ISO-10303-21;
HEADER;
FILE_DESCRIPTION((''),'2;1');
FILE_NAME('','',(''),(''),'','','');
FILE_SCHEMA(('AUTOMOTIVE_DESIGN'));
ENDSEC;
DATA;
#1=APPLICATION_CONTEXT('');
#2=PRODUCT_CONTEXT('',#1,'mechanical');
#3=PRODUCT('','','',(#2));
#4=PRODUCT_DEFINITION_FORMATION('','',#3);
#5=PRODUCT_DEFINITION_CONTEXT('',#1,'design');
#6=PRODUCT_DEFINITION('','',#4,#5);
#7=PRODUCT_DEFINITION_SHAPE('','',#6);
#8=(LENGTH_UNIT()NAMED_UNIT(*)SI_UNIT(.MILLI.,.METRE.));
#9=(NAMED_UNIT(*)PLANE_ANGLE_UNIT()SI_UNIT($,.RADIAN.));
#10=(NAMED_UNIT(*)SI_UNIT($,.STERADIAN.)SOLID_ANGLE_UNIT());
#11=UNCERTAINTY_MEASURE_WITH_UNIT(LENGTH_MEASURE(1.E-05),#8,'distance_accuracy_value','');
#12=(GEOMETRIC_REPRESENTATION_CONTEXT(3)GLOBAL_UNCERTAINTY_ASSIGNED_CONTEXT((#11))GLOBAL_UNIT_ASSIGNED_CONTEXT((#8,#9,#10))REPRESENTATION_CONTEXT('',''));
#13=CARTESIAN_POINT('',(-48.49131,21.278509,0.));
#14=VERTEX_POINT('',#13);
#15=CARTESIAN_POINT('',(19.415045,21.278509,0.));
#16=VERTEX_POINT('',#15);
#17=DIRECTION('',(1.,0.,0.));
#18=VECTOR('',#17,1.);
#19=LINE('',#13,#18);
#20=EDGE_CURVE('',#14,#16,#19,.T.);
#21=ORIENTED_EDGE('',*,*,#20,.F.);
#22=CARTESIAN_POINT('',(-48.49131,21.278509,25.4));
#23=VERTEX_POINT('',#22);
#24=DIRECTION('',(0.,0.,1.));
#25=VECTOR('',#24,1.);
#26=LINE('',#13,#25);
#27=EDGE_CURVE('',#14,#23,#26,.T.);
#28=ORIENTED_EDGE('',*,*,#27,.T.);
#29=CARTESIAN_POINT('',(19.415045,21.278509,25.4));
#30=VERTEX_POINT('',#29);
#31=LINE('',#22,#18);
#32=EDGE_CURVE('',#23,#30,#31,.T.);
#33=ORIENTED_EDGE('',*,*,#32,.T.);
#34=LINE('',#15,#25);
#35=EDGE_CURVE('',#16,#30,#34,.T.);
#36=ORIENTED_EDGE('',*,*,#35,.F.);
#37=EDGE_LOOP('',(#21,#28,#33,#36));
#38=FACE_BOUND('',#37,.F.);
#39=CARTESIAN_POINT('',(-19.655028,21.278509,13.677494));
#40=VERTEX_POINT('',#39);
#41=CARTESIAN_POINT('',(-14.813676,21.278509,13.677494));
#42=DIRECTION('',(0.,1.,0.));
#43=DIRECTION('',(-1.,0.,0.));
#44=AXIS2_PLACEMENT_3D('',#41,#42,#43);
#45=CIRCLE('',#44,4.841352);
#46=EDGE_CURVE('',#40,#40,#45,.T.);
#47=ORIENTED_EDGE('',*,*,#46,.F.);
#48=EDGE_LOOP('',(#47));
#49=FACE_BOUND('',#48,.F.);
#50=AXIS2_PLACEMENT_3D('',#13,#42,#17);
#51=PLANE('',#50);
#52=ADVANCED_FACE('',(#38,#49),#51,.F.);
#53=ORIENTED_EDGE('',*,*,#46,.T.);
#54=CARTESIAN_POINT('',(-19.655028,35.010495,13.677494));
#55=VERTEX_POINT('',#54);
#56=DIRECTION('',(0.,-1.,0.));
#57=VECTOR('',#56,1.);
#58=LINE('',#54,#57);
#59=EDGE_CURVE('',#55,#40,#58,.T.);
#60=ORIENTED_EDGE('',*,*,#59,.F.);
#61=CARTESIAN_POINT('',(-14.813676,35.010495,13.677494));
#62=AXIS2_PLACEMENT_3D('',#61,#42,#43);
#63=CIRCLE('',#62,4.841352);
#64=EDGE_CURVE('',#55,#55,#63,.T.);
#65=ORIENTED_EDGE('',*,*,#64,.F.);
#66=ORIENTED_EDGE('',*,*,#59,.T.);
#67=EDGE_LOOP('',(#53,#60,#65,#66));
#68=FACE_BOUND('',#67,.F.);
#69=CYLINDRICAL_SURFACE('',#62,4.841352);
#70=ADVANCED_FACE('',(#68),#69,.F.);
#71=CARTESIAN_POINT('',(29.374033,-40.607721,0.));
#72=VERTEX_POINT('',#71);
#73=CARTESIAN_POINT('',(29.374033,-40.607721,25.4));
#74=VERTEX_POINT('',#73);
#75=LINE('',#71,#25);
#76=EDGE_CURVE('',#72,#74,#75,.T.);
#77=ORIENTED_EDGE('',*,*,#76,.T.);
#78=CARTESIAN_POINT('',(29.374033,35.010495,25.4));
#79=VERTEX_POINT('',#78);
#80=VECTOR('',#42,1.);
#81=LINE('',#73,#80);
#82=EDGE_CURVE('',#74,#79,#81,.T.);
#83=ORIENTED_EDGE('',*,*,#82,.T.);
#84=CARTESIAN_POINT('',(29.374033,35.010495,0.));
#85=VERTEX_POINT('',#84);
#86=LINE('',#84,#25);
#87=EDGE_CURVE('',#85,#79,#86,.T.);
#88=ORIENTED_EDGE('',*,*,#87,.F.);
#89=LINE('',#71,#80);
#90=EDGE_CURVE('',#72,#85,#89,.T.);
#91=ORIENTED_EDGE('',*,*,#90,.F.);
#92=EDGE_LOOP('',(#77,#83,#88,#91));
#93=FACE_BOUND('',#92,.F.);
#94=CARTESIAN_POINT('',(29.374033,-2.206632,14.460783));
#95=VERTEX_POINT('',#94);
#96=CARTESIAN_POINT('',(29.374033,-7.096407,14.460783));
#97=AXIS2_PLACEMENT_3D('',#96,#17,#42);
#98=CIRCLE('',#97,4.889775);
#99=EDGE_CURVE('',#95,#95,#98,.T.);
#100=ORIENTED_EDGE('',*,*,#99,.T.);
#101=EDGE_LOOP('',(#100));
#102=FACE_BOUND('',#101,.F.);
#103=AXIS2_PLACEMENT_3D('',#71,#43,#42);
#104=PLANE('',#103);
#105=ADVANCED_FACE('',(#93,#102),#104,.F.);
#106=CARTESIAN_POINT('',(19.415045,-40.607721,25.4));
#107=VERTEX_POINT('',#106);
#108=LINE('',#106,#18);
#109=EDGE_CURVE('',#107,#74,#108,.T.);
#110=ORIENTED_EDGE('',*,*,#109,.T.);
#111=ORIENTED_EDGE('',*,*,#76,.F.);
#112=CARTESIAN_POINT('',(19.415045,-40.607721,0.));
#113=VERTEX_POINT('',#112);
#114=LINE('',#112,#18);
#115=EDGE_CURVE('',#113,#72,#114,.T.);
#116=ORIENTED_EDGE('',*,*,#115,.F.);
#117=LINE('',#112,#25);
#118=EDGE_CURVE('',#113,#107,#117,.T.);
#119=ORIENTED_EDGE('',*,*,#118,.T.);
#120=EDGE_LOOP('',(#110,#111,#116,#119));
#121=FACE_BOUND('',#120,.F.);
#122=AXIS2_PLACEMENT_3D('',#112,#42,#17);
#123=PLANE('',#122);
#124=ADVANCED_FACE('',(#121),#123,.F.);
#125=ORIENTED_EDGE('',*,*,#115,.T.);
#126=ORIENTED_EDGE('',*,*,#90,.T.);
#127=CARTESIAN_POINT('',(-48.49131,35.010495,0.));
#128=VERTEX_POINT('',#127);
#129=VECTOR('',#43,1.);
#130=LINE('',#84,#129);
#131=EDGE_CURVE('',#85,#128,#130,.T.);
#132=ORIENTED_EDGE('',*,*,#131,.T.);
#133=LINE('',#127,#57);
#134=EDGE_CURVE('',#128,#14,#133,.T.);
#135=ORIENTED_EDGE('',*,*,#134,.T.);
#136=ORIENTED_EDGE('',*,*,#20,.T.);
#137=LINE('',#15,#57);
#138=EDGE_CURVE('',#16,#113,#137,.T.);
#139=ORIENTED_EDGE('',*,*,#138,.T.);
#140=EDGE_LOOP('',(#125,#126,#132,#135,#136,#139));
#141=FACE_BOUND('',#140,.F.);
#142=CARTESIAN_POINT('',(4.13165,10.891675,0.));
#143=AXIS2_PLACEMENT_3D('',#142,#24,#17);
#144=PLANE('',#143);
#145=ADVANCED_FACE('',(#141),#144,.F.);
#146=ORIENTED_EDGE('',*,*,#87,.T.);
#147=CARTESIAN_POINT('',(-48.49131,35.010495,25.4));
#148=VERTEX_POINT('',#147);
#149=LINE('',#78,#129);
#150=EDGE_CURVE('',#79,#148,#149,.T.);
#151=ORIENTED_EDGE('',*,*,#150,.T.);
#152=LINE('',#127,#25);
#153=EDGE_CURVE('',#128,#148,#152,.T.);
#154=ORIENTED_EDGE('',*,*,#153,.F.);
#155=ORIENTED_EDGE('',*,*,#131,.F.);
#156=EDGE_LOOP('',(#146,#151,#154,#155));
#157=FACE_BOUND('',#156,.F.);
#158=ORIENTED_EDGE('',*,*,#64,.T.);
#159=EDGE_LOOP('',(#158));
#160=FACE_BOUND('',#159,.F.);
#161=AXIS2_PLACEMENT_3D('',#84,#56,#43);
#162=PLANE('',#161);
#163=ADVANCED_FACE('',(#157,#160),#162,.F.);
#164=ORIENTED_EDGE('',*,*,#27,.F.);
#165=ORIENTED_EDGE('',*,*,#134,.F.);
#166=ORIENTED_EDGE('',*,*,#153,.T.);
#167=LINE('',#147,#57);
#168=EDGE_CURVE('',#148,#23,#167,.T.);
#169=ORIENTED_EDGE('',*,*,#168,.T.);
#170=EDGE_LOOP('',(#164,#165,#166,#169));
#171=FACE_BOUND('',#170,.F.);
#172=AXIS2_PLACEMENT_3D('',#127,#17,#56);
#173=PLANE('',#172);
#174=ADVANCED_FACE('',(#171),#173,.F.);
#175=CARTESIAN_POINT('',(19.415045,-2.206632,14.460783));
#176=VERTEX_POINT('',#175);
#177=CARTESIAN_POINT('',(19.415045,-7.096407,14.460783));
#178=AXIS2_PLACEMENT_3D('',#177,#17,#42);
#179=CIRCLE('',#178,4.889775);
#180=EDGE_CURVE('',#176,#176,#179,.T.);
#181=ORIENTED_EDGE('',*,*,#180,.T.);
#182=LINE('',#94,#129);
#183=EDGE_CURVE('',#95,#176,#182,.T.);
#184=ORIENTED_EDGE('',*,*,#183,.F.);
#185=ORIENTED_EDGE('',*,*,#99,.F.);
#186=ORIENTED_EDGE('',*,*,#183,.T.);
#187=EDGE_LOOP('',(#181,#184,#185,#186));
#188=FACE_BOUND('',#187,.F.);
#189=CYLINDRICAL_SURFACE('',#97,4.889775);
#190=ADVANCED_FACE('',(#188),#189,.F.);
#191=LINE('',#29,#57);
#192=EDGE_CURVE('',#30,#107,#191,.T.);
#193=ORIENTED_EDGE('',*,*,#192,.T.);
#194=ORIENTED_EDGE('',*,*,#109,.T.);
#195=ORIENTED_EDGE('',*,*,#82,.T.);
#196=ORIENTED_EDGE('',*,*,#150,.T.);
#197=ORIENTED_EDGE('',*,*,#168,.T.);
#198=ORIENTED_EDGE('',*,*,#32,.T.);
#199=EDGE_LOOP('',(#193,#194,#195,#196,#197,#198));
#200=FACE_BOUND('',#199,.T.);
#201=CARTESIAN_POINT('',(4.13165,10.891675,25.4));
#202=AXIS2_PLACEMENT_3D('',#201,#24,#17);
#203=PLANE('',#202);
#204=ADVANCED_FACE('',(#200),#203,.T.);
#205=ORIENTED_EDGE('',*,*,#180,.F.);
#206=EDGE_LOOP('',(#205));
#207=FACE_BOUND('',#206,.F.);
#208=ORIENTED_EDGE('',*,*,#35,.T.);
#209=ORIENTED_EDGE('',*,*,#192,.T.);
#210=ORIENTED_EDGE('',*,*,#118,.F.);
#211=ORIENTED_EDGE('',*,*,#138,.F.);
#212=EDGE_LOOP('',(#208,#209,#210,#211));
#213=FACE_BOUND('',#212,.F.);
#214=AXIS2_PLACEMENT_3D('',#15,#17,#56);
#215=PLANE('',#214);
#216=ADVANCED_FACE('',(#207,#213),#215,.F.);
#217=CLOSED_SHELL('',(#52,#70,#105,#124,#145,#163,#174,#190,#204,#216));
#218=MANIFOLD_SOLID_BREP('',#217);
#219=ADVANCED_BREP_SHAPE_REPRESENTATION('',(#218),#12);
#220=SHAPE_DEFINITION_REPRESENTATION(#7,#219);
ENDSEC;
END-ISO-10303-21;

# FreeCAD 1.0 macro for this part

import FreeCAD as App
import Part
import Sketcher
from FreeCAD import Vector
Q = App.Units.Quantity


def add_polygon(sketch, points):
    """Adds a closed chain of lines whose ends are joined by coincident constraints."""
    first, n = sketch.GeometryCount, len(points)
    for a, b in zip(points, points[1:] + points[:1]):
        sketch.addGeometry(Part.LineSegment(App.Vector(*a, 0), App.Vector(*b, 0)), False)
    for i in range(n):
        sketch.addConstraint(Sketcher.Constraint("Coincident", first + i, 2, first + (i + 1) % n, 1))

doc = App.newDocument("Part")
body = doc.addObject("PartDesign::Body", "Body")

sketch1 = doc.addObject("Sketcher::SketchObject", "Sketch")
body.addObject(sketch1)
sketch1.AttachmentSupport = (doc.XY_Plane, [""])
sketch1.MapMode = "FlatFace"
add_polygon(sketch1, [(29, 35), (-48, 35), (-48, 21), (19, 21), (19, -41), (29, -41)])
sketch1.addConstraint(Sketcher.Constraint("Horizontal", 0))
sketch1.addConstraint(Sketcher.Constraint("Vertical", 1))
sketch1.addConstraint(Sketcher.Constraint("Horizontal", 2))
sketch1.addConstraint(Sketcher.Constraint("Vertical", 3))
sketch1.addConstraint(Sketcher.Constraint("Horizontal", 4))
sketch1.addConstraint(Sketcher.Constraint("Vertical", 5))
sketch1.addConstraint(Sketcher.Constraint("DistanceX", 4, 1, 4, 2, Q("9.958988 mm")))
sketch1.addConstraint(Sketcher.Constraint("DistanceY", 3, 2, 3, 1, Q("61.88623 mm")))
sketch1.addConstraint(Sketcher.Constraint("DistanceX", 0, 2, 0, 1, Q("77.865343 mm")))
sketch1.addConstraint(Sketcher.Constraint("DistanceY", 1, 2, 1, 1, Q("13.731986 mm")))
sketch1.addConstraint(Sketcher.Constraint("DistanceX", 0, 2, -1, 1, Q("48.49131 mm")))
sketch1.addConstraint(Sketcher.Constraint("DistanceY", -1, 1, 1, 2, Q("21.278509 mm")))
pad1 = doc.addObject("PartDesign::Pad", "Pad")
body.addObject(pad1)
pad1.Profile = sketch1
pad1.Length = Q("1 in")

sketch2 = doc.addObject("Sketcher::SketchObject", "Sketch001")
body.addObject(sketch2)
sketch2.AttachmentSupport = (doc.YZ_Plane, [""])
sketch2.MapMode = "FlatFace"
sketch2.AttachmentOffset = App.Placement(Vector(0, 0, 29.374033), App.Rotation())
sketch2.addGeometry(Part.Circle(Vector(-7.1, 14.5, 0), Vector(0, 0, 1), 4.9), False)
sketch2.addConstraint(Sketcher.Constraint("Diameter", 0, Q("9.77955 mm")))
sketch2.addConstraint(Sketcher.Constraint("DistanceX", 0, 3, -1, 1, Q("7.096407 mm")))
sketch2.addConstraint(Sketcher.Constraint("DistanceY", -1, 1, 0, 3, Q("14.460783 mm")))
pocket1 = doc.addObject("PartDesign::Pocket", "Pocket")
body.addObject(pocket1)
pocket1.Profile = sketch2
pocket1.Length = Q("1 in")

sketch3 = doc.addObject("Sketcher::SketchObject", "Sketch002")
body.addObject(sketch3)
sketch3.AttachmentSupport = (doc.XZ_Plane, [""])
sketch3.MapMode = "FlatFace"
sketch3.AttachmentOffset = App.Placement(Vector(0, 0, -35.010495), App.Rotation())
sketch3.addGeometry(Part.Circle(Vector(-14.8, 13.7, 0), Vector(0, 0, 1), 4.8), False)
sketch3.addConstraint(Sketcher.Constraint("Diameter", 0, Q("9.682704 mm")))
sketch3.addConstraint(Sketcher.Constraint("DistanceX", 0, 3, -1, 1, Q("14.813676 mm")))
sketch3.addConstraint(Sketcher.Constraint("DistanceY", -1, 1, 0, 3, Q("13.677494 mm")))
pocket2 = doc.addObject("PartDesign::Pocket", "Pocket001")
body.addObject(pocket2)
pocket2.Profile = sketch3
pocket2.Length = Q("0.57 in")
pocket2.Reversed = True

doc.recompute()
